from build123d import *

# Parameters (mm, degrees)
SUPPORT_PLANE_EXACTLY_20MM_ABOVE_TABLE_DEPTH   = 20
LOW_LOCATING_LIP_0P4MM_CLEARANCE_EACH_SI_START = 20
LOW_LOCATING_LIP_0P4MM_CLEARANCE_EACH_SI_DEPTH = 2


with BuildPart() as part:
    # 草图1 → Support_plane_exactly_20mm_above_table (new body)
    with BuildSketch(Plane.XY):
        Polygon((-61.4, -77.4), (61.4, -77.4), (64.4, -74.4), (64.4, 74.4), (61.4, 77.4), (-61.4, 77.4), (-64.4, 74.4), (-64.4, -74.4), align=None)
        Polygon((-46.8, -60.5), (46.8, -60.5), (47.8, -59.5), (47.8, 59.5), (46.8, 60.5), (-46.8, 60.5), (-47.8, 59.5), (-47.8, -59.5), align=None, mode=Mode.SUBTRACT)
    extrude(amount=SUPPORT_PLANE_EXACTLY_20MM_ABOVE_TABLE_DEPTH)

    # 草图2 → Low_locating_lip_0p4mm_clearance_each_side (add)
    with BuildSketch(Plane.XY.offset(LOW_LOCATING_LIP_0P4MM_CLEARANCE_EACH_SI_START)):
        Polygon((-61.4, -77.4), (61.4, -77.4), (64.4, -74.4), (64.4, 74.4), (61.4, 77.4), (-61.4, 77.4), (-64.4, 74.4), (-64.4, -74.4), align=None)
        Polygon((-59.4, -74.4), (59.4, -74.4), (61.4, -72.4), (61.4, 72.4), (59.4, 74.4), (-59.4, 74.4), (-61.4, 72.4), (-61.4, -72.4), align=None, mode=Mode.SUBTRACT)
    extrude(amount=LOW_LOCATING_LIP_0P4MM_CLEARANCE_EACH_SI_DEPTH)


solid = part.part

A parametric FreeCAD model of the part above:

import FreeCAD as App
import Part
import Sketcher


def add_polygon(sketch, points):
    """Adds a closed chain of lines whose ends are joined by coincident constraints."""
    first, n = sketch.GeometryCount, len(points)
    for a, b in zip(points, points[1:] + points[:1]):
        sketch.addGeometry(Part.LineSegment(App.Vector(*a, 0), App.Vector(*b, 0)), False)
    for i in range(n):
        sketch.addConstraint(Sketcher.Constraint("Coincident", first + i, 2, first + (i + 1) % n, 1))

doc = App.newDocument("Part")
body = doc.addObject("PartDesign::Body", "Body")

# Sketch on XY plane
sketch1 = body.newObject("Sketcher::SketchObject", "Sketch")
sketch1.AttachmentSupport = (doc.getObject("XY_Plane"), [""])
sketch1.MapMode = "FlatFace"
add_polygon(sketch1, [(-61.4, -77.4), (61.4, -77.4), (64.4, -74.4), (64.4, 74.4), (61.4, 77.4), (-61.4, 77.4), (-64.4, 74.4), (-64.4, -74.4)])  # lines 0-7
add_polygon(sketch1, [(46.8, -60.5), (-46.8, -60.5), (-47.8, -59.5), (-47.8, 59.5), (-46.8, 60.5), (46.8, 60.5), (47.8, 59.5), (47.8, -59.5)])  # lines 8-15
sketch1.addConstraint([
    Sketcher.Constraint("Horizontal", 0),
    Sketcher.Constraint("Vertical", 2),
    Sketcher.Constraint("Horizontal", 4),
    Sketcher.Constraint("Vertical", 6),
    Sketcher.Constraint("Horizontal", 8),
    Sketcher.Constraint("Vertical", 10),
    Sketcher.Constraint("Horizontal", 12),
    Sketcher.Constraint("Vertical", 14),
    Sketcher.Constraint("Symmetric", 0, 2, 4, 2, -1, 1),
    Sketcher.Constraint("Symmetric", 1, 2, 5, 2, -1, 1),
    Sketcher.Constraint("Symmetric", 8, 2, 12, 2, -1, 1),
    Sketcher.Constraint("Symmetric", 9, 2, 13, 2, -1, 1),
    Sketcher.Constraint("Perpendicular", 1, 3),
    Sketcher.Constraint("Perpendicular", 5, 7),
    Sketcher.Constraint("Parallel", 7, 9),
    Sketcher.Constraint("Perpendicular", 9, 11),
    Sketcher.Constraint("Perpendicular", 13, 15),
    Sketcher.Constraint("Horizontal", 2, 2, 5, 2),
    Sketcher.Constraint("Horizontal", 1, 2, 6, 2),
    Sketcher.Constraint("Horizontal", 10, 2, 13, 2),
    Sketcher.Constraint("Horizontal", 9, 2, 14, 2),
    Sketcher.Constraint("Vertical", 0, 2, 3, 2),
    Sketcher.Constraint("DistanceY", 10, 1, 10, 2, 119.0),
    Sketcher.Constraint("DistanceX", 0, 1, 0, 2, 122.8),
    Sketcher.Constraint("DistanceX", 8, 2, 8, 1, 93.6),
    Sketcher.Constraint("DistanceY", 2, 1, 2, 2, 148.8),
    Sketcher.Constraint("DistanceX", 0, 2, 1, 2, 3.0),
    Sketcher.Constraint("DistanceX", 9, 2, 8, 2, 1.0),
])
pad1 = body.newObject("PartDesign::Pad", "Pad")
pad1.Profile = sketch1
pad1.Length = 20

# Sketch on XY plane
sketch2 = body.newObject("Sketcher::SketchObject", "Sketch001")
sketch2.AttachmentSupport = (doc.getObject("XY_Plane"), [""])
sketch2.MapMode = "FlatFace"
sketch2.AttachmentOffset = App.Placement(App.Vector(0, 0, 20), App.Rotation())
add_polygon(sketch2, [(-61.4, -77.4), (61.4, -77.4), (64.4, -74.4), (64.4, 74.4), (61.4, 77.4), (-61.4, 77.4), (-64.4, 74.4), (-64.4, -74.4)])  # lines 0-7
add_polygon(sketch2, [(59.4, -74.4), (-59.4, -74.4), (-61.4, -72.4), (-61.4, 72.4), (-59.4, 74.4), (59.4, 74.4), (61.4, 72.4), (61.4, -72.4)])  # lines 8-15
sketch2.addConstraint([
    Sketcher.Constraint("Horizontal", 0),
    Sketcher.Constraint("Vertical", 2),
    Sketcher.Constraint("Horizontal", 4),
    Sketcher.Constraint("Vertical", 6),
    Sketcher.Constraint("Horizontal", 8),
    Sketcher.Constraint("Vertical", 10),
    Sketcher.Constraint("Horizontal", 12),
    Sketcher.Constraint("Vertical", 14),
    Sketcher.Constraint("Symmetric", 0, 2, 4, 2, -1, 1),
    Sketcher.Constraint("Symmetric", 1, 2, 5, 2, -1, 1),
    Sketcher.Constraint("Symmetric", 8, 2, 12, 2, -1, 1),
    Sketcher.Constraint("Symmetric", 9, 2, 13, 2, -1, 1),
    Sketcher.Constraint("Perpendicular", 1, 3),
    Sketcher.Constraint("Perpendicular", 5, 7),
    Sketcher.Constraint("Parallel", 7, 9),
    Sketcher.Constraint("Perpendicular", 9, 11),
    Sketcher.Constraint("Perpendicular", 13, 15),
    Sketcher.Constraint("Horizontal", 2, 2, 5, 2),
    Sketcher.Constraint("Horizontal", 1, 2, 6, 2),
    Sketcher.Constraint("Horizontal", 6, 2, 8, 2),
    Sketcher.Constraint("Horizontal", 10, 2, 13, 2),
    Sketcher.Constraint("Horizontal", 9, 2, 14, 2),
    Sketcher.Constraint("Vertical", 0, 2, 3, 2),
    Sketcher.Constraint("Vertical", 7, 2, 9, 2),
    Sketcher.Constraint("DistanceX", 0, 1, 0, 2, 122.8),
    Sketcher.Constraint("DistanceX", 8, 2, 8, 1, 118.8),
    Sketcher.Constraint("DistanceY", 2, 1, 2, 2, 148.8),
    Sketcher.Constraint("DistanceX", 0, 2, 1, 2, 3.0),
])
pad2 = body.newObject("PartDesign::Pad", "Pad001")
pad2.Profile = sketch2
pad2.Length = 2

doc.recompute()
